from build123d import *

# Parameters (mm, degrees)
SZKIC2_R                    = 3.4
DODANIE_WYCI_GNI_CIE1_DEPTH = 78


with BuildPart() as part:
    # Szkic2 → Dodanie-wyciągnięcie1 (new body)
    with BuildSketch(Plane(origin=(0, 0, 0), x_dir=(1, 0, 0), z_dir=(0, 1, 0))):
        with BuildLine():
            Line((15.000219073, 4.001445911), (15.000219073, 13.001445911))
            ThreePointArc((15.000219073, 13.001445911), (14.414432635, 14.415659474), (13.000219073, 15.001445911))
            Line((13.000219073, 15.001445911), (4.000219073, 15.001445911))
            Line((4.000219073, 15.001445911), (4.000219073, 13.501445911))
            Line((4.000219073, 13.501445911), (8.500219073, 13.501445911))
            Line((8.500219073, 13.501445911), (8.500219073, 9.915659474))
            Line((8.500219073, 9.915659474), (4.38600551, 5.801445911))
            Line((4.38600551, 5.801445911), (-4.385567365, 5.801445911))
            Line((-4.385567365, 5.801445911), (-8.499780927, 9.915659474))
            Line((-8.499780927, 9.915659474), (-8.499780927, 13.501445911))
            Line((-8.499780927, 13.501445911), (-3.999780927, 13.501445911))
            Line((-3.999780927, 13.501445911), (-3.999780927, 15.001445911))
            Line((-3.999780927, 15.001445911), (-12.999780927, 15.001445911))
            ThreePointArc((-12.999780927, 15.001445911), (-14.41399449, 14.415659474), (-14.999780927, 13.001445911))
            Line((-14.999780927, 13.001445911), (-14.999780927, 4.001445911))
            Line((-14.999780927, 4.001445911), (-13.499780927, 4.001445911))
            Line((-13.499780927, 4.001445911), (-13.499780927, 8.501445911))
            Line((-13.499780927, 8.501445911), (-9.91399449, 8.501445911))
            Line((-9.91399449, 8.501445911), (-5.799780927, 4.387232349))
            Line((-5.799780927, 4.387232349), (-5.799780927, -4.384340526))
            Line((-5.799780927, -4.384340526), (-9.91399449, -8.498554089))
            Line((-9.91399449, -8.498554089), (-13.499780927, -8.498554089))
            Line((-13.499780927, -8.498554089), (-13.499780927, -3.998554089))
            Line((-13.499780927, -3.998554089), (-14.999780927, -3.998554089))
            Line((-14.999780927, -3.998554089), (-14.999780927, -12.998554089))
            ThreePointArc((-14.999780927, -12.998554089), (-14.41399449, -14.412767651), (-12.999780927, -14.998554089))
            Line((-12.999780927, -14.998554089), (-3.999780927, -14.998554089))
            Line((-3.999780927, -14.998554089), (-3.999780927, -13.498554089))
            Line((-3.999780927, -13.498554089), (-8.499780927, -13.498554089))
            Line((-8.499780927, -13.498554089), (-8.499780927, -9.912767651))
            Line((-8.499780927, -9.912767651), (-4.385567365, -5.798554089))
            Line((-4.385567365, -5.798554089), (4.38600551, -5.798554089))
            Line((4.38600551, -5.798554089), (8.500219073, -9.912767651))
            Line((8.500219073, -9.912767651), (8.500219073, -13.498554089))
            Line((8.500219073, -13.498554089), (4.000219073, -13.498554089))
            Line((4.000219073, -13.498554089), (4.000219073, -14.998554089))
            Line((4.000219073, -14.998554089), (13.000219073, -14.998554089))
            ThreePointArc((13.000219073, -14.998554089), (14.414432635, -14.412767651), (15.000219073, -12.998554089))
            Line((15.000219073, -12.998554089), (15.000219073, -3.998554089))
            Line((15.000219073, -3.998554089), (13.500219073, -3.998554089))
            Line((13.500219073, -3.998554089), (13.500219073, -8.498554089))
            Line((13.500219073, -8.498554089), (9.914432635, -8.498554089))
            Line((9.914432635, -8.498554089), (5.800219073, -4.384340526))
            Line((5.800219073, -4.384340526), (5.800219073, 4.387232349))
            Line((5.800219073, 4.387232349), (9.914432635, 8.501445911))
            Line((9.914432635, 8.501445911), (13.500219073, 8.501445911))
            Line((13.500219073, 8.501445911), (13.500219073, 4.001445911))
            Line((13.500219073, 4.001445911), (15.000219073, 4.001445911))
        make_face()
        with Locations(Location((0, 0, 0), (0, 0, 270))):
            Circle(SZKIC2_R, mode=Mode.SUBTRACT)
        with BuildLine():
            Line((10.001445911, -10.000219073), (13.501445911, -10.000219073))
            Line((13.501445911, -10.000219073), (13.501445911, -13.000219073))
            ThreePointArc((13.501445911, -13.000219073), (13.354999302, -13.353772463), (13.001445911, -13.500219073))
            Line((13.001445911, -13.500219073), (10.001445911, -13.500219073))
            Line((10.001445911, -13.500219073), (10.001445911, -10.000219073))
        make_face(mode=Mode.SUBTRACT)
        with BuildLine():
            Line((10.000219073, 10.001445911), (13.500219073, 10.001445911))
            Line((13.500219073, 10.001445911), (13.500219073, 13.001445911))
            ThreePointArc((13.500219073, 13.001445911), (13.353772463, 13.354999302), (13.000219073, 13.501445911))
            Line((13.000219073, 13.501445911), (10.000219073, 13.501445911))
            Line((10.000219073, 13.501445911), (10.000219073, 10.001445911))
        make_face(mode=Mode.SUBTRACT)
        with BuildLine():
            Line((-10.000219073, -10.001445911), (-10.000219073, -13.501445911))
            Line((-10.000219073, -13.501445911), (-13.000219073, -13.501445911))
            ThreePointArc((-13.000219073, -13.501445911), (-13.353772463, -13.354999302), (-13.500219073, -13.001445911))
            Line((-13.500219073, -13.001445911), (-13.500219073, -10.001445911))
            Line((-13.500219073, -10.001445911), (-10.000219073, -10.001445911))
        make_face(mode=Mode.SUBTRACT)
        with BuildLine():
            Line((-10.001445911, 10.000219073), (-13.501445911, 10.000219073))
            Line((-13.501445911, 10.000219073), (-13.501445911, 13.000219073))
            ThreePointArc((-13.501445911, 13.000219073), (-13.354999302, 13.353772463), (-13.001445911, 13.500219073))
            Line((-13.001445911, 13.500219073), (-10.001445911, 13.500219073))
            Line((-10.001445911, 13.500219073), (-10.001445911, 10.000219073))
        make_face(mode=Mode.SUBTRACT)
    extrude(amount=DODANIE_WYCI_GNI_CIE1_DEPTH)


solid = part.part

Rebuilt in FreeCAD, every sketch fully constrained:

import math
import FreeCAD as App
import Part
import Sketcher
Q = App.Units.Quantity

doc = App.newDocument("Part")
body = doc.addObject("PartDesign::Body", "Body")

sketch1 = doc.addObject("Sketcher::SketchObject", "Sketch")
body.addObject(sketch1)
sketch1.AttachmentSupport = (doc.XZ_Plane, [""])
sketch1.MapMode = "FlatFace"
sketch1.addGeometry(Part.LineSegment(App.Vector(15.000219, -4.001446, 0), App.Vector(15.000219, -13.001446, 0)), False)
sketch1.addGeometry(Part.ArcOfCircle(Part.Circle(App.Vector(13.000219, -13.001446, 0), App.Vector(0, 0, 1), 2), math.radians(-90), math.radians(0)), False)
sketch1.addGeometry(Part.LineSegment(App.Vector(13.000219, -15.001446, 0), App.Vector(4.000219, -15.001446, 0)), False)
sketch1.addGeometry(Part.LineSegment(App.Vector(4.000219, -15.001446, 0), App.Vector(4.000219, -13.501446, 0)), False)
sketch1.addGeometry(Part.LineSegment(App.Vector(4.000219, -13.501446, 0), App.Vector(8.500219, -13.501446, 0)), False)
sketch1.addGeometry(Part.LineSegment(App.Vector(8.500219, -13.501446, 0), App.Vector(8.500219, -9.915659, 0)), False)
sketch1.addGeometry(Part.LineSegment(App.Vector(8.500219, -9.915659, 0), App.Vector(4.386006, -5.801446, 0)), False)
sketch1.addGeometry(Part.LineSegment(App.Vector(4.386006, -5.801446, 0), App.Vector(-4.385567, -5.801446, 0)), False)
sketch1.addGeometry(Part.LineSegment(App.Vector(-4.385567, -5.801446, 0), App.Vector(-8.499781, -9.915659, 0)), False)
sketch1.addGeometry(Part.LineSegment(App.Vector(-8.499781, -9.915659, 0), App.Vector(-8.499781, -13.501446, 0)), False)
sketch1.addGeometry(Part.LineSegment(App.Vector(-8.499781, -13.501446, 0), App.Vector(-3.999781, -13.501446, 0)), False)
sketch1.addGeometry(Part.LineSegment(App.Vector(-3.999781, -13.501446, 0), App.Vector(-3.999781, -15.001446, 0)), False)
sketch1.addGeometry(Part.LineSegment(App.Vector(-3.999781, -15.001446, 0), App.Vector(-12.999781, -15.001446, 0)), False)
sketch1.addGeometry(Part.ArcOfCircle(Part.Circle(App.Vector(-12.999781, -13.001446, 0), App.Vector(0, 0, 1), 2), math.radians(180), math.radians(270)), False)
sketch1.addGeometry(Part.LineSegment(App.Vector(-14.999781, -13.001446, 0), App.Vector(-14.999781, -4.001446, 0)), False)
sketch1.addGeometry(Part.LineSegment(App.Vector(-14.999781, -4.001446, 0), App.Vector(-13.499781, -4.001446, 0)), False)
sketch1.addGeometry(Part.LineSegment(App.Vector(-13.499781, -4.001446, 0), App.Vector(-13.499781, -8.501446, 0)), False)
sketch1.addGeometry(Part.LineSegment(App.Vector(-13.499781, -8.501446, 0), App.Vector(-9.913994, -8.501446, 0)), False)
sketch1.addGeometry(Part.LineSegment(App.Vector(-9.913994, -8.501446, 0), App.Vector(-5.799781, -4.387232, 0)), False)
sketch1.addGeometry(Part.LineSegment(App.Vector(-5.799781, -4.387232, 0), App.Vector(-5.799781, 4.384341, 0)), False)
sketch1.addGeometry(Part.LineSegment(App.Vector(-5.799781, 4.384341, 0), App.Vector(-9.913994, 8.498554, 0)), False)
sketch1.addGeometry(Part.LineSegment(App.Vector(-9.913994, 8.498554, 0), App.Vector(-13.499781, 8.498554, 0)), False)
sketch1.addGeometry(Part.LineSegment(App.Vector(-13.499781, 8.498554, 0), App.Vector(-13.499781, 3.998554, 0)), False)
sketch1.addGeometry(Part.LineSegment(App.Vector(-13.499781, 3.998554, 0), App.Vector(-14.999781, 3.998554, 0)), False)
sketch1.addGeometry(Part.LineSegment(App.Vector(-14.999781, 3.998554, 0), App.Vector(-14.999781, 12.998554, 0)), False)
sketch1.addGeometry(Part.ArcOfCircle(Part.Circle(App.Vector(-12.999781, 12.998554, 0), App.Vector(0, 0, 1), 2), math.radians(90), math.radians(180)), False)
sketch1.addGeometry(Part.LineSegment(App.Vector(-12.999781, 14.998554, 0), App.Vector(-3.999781, 14.998554, 0)), False)
sketch1.addGeometry(Part.LineSegment(App.Vector(-3.999781, 14.998554, 0), App.Vector(-3.999781, 13.498554, 0)), False)
sketch1.addGeometry(Part.LineSegment(App.Vector(-3.999781, 13.498554, 0), App.Vector(-8.499781, 13.498554, 0)), False)
sketch1.addGeometry(Part.LineSegment(App.Vector(-8.499781, 13.498554, 0), App.Vector(-8.499781, 9.912768, 0)), False)
sketch1.addGeometry(Part.LineSegment(App.Vector(-8.499781, 9.912768, 0), App.Vector(-4.385567, 5.798554, 0)), False)
sketch1.addGeometry(Part.LineSegment(App.Vector(-4.385567, 5.798554, 0), App.Vector(4.386006, 5.798554, 0)), False)
sketch1.addGeometry(Part.LineSegment(App.Vector(4.386006, 5.798554, 0), App.Vector(8.500219, 9.912768, 0)), False)
sketch1.addGeometry(Part.LineSegment(App.Vector(8.500219, 9.912768, 0), App.Vector(8.500219, 13.498554, 0)), False)
sketch1.addGeometry(Part.LineSegment(App.Vector(8.500219, 13.498554, 0), App.Vector(4.000219, 13.498554, 0)), False)
sketch1.addGeometry(Part.LineSegment(App.Vector(4.000219, 13.498554, 0), App.Vector(4.000219, 14.998554, 0)), False)
sketch1.addGeometry(Part.LineSegment(App.Vector(4.000219, 14.998554, 0), App.Vector(13.000219, 14.998554, 0)), False)
sketch1.addGeometry(Part.ArcOfCircle(Part.Circle(App.Vector(13.000219, 12.998554, 0), App.Vector(0, 0, 1), 2), math.radians(0), math.radians(90)), False)
sketch1.addGeometry(Part.LineSegment(App.Vector(15.000219, 12.998554, 0), App.Vector(15.000219, 3.998554, 0)), False)
sketch1.addGeometry(Part.LineSegment(App.Vector(15.000219, 3.998554, 0), App.Vector(13.500219, 3.998554, 0)), False)
sketch1.addGeometry(Part.LineSegment(App.Vector(13.500219, 3.998554, 0), App.Vector(13.500219, 8.498554, 0)), False)
sketch1.addGeometry(Part.LineSegment(App.Vector(13.500219, 8.498554, 0), App.Vector(9.914433, 8.498554, 0)), False)
sketch1.addGeometry(Part.LineSegment(App.Vector(9.914433, 8.498554, 0), App.Vector(5.800219, 4.384341, 0)), False)
sketch1.addGeometry(Part.LineSegment(App.Vector(5.800219, 4.384341, 0), App.Vector(5.800219, -4.387232, 0)), False)
sketch1.addGeometry(Part.LineSegment(App.Vector(5.800219, -4.387232, 0), App.Vector(9.914433, -8.501446, 0)), False)
sketch1.addGeometry(Part.LineSegment(App.Vector(9.914433, -8.501446, 0), App.Vector(13.500219, -8.501446, 0)), False)
sketch1.addGeometry(Part.LineSegment(App.Vector(13.500219, -8.501446, 0), App.Vector(13.500219, -4.001446, 0)), False)
sketch1.addGeometry(Part.LineSegment(App.Vector(13.500219, -4.001446, 0), App.Vector(15.000219, -4.001446, 0)), False)
sketch1.addGeometry(Part.LineSegment(App.Vector(-13.500219, 10.001446, 0), App.Vector(-10.000219, 10.001446, 0)), False)
sketch1.addGeometry(Part.LineSegment(App.Vector(-10.000219, 10.001446, 0), App.Vector(-10.000219, 13.501446, 0)), False)
sketch1.addGeometry(Part.LineSegment(App.Vector(-10.000219, 13.501446, 0), App.Vector(-13.000219, 13.501446, 0)), False)
sketch1.addGeometry(Part.ArcOfCircle(Part.Circle(App.Vector(-13.000219, 13.001446, 0), App.Vector(0, 0, 1), 0.5), math.radians(90), math.radians(180)), False)
sketch1.addGeometry(Part.LineSegment(App.Vector(-13.500219, 13.001446, 0), App.Vector(-13.500219, 10.001446, 0)), False)
sketch1.addGeometry(Part.Circle(App.Vector(0, 0, 0), App.Vector(0, 0, 1), 3.4), False)
sketch1.addGeometry(Part.LineSegment(App.Vector(10.001446, 13.500219, 0), App.Vector(10.001446, 10.000219, 0)), False)
sketch1.addGeometry(Part.LineSegment(App.Vector(10.001446, 10.000219, 0), App.Vector(13.501446, 10.000219, 0)), False)
sketch1.addGeometry(Part.LineSegment(App.Vector(13.501446, 10.000219, 0), App.Vector(13.501446, 13.000219, 0)), False)
sketch1.addGeometry(Part.ArcOfCircle(Part.Circle(App.Vector(13.001446, 13.000219, 0), App.Vector(0, 0, 1), 0.5), math.radians(0), math.radians(90)), False)
sketch1.addGeometry(Part.LineSegment(App.Vector(13.001446, 13.500219, 0), App.Vector(10.001446, 13.500219, 0)), False)
sketch1.addGeometry(Part.LineSegment(App.Vector(-10.001446, -13.500219, 0), App.Vector(-10.001446, -10.000219, 0)), False)
sketch1.addGeometry(Part.LineSegment(App.Vector(-10.001446, -10.000219, 0), App.Vector(-13.501446, -10.000219, 0)), False)
sketch1.addGeometry(Part.LineSegment(App.Vector(-13.501446, -10.000219, 0), App.Vector(-13.501446, -13.000219, 0)), False)
sketch1.addGeometry(Part.ArcOfCircle(Part.Circle(App.Vector(-13.001446, -13.000219, 0), App.Vector(0, 0, 1), 0.5), math.radians(180), math.radians(270)), False)
sketch1.addGeometry(Part.LineSegment(App.Vector(-13.001446, -13.500219, 0), App.Vector(-10.001446, -13.500219, 0)), False)
sketch1.addGeometry(Part.LineSegment(App.Vector(13.500219, -10.001446, 0), App.Vector(10.000219, -10.001446, 0)), False)
sketch1.addGeometry(Part.LineSegment(App.Vector(10.000219, -10.001446, 0), App.Vector(10.000219, -13.501446, 0)), False)
sketch1.addGeometry(Part.LineSegment(App.Vector(10.000219, -13.501446, 0), App.Vector(13.000219, -13.501446, 0)), False)
sketch1.addGeometry(Part.ArcOfCircle(Part.Circle(App.Vector(13.000219, -13.001446, 0), App.Vector(0, 0, 1), 0.5), math.radians(-90), math.radians(0)), False)
sketch1.addGeometry(Part.LineSegment(App.Vector(13.500219, -13.001446, 0), App.Vector(13.500219, -10.001446, 0)), False)
sketch1.addConstraint(Sketcher.Constraint("Tangent", 0, 2, 1, 2))
sketch1.addConstraint(Sketcher.Constraint("Tangent", 1, 1, 2, 1))
sketch1.addConstraint(Sketcher.Constraint("Coincident", 2, 2, 3, 1))
sketch1.addConstraint(Sketcher.Constraint("Coincident", 3, 2, 4, 1))
sketch1.addConstraint(Sketcher.Constraint("Coincident", 4, 2, 5, 1))
sketch1.addConstraint(Sketcher.Constraint("Coincident", 5, 2, 6, 1))
sketch1.addConstraint(Sketcher.Constraint("Coincident", 6, 2, 7, 1))
sketch1.addConstraint(Sketcher.Constraint("Coincident", 7, 2, 8, 1))
sketch1.addConstraint(Sketcher.Constraint("Coincident", 8, 2, 9, 1))
sketch1.addConstraint(Sketcher.Constraint("Coincident", 9, 2, 10, 1))
sketch1.addConstraint(Sketcher.Constraint("Coincident", 10, 2, 11, 1))
sketch1.addConstraint(Sketcher.Constraint("Coincident", 11, 2, 12, 1))
sketch1.addConstraint(Sketcher.Constraint("Tangent", 12, 2, 13, 2))
sketch1.addConstraint(Sketcher.Constraint("Tangent", 13, 1, 14, 1))
sketch1.addConstraint(Sketcher.Constraint("Coincident", 14, 2, 15, 1))
sketch1.addConstraint(Sketcher.Constraint("Coincident", 15, 2, 16, 1))
sketch1.addConstraint(Sketcher.Constraint("Coincident", 16, 2, 17, 1))
sketch1.addConstraint(Sketcher.Constraint("Coincident", 17, 2, 18, 1))
sketch1.addConstraint(Sketcher.Constraint("Coincident", 18, 2, 19, 1))
sketch1.addConstraint(Sketcher.Constraint("Coincident", 19, 2, 20, 1))
sketch1.addConstraint(Sketcher.Constraint("Coincident", 20, 2, 21, 1))
sketch1.addConstraint(Sketcher.Constraint("Coincident", 21, 2, 22, 1))
sketch1.addConstraint(Sketcher.Constraint("Coincident", 22, 2, 23, 1))
sketch1.addConstraint(Sketcher.Constraint("Coincident", 23, 2, 24, 1))
sketch1.addConstraint(Sketcher.Constraint("Tangent", 24, 2, 25, 2))
sketch1.addConstraint(Sketcher.Constraint("Tangent", 25, 1, 26, 1))
sketch1.addConstraint(Sketcher.Constraint("Coincident", 26, 2, 27, 1))
sketch1.addConstraint(Sketcher.Constraint("Coincident", 27, 2, 28, 1))
sketch1.addConstraint(Sketcher.Constraint("Coincident", 28, 2, 29, 1))
sketch1.addConstraint(Sketcher.Constraint("Coincident", 29, 2, 30, 1))
sketch1.addConstraint(Sketcher.Constraint("Coincident", 30, 2, 31, 1))
sketch1.addConstraint(Sketcher.Constraint("Coincident", 31, 2, 32, 1))
sketch1.addConstraint(Sketcher.Constraint("Coincident", 32, 2, 33, 1))
sketch1.addConstraint(Sketcher.Constraint("Coincident", 33, 2, 34, 1))
sketch1.addConstraint(Sketcher.Constraint("Coincident", 34, 2, 35, 1))
sketch1.addConstraint(Sketcher.Constraint("Coincident", 35, 2, 36, 1))
sketch1.addConstraint(Sketcher.Constraint("Tangent", 36, 2, 37, 2))
sketch1.addConstraint(Sketcher.Constraint("Tangent", 37, 1, 38, 1))
sketch1.addConstraint(Sketcher.Constraint("Coincident", 38, 2, 39, 1))
sketch1.addConstraint(Sketcher.Constraint("Coincident", 39, 2, 40, 1))
sketch1.addConstraint(Sketcher.Constraint("Coincident", 40, 2, 41, 1))
sketch1.addConstraint(Sketcher.Constraint("Coincident", 41, 2, 42, 1))
sketch1.addConstraint(Sketcher.Constraint("Coincident", 42, 2, 43, 1))
sketch1.addConstraint(Sketcher.Constraint("Coincident", 43, 2, 44, 1))
sketch1.addConstraint(Sketcher.Constraint("Coincident", 44, 2, 45, 1))
sketch1.addConstraint(Sketcher.Constraint("Coincident", 45, 2, 46, 1))
sketch1.addConstraint(Sketcher.Constraint("Coincident", 46, 2, 47, 1))
sketch1.addConstraint(Sketcher.Constraint("Coincident", 47, 2, 0, 1))
sketch1.addConstraint(Sketcher.Constraint("Coincident", 48, 2, 49, 1))
sketch1.addConstraint(Sketcher.Constraint("Coincident", 49, 2, 50, 1))
sketch1.addConstraint(Sketcher.Constraint("Tangent", 50, 2, 51, 1))
sketch1.addConstraint(Sketcher.Constraint("Tangent", 51, 2, 52, 1))
sketch1.addConstraint(Sketcher.Constraint("Coincident", 52, 2, 48, 1))
sketch1.addConstraint(Sketcher.Constraint("Coincident", 54, 2, 55, 1))
sketch1.addConstraint(Sketcher.Constraint("Coincident", 55, 2, 56, 1))
sketch1.addConstraint(Sketcher.Constraint("Tangent", 56, 2, 57, 1))
sketch1.addConstraint(Sketcher.Constraint("Tangent", 57, 2, 58, 1))
sketch1.addConstraint(Sketcher.Constraint("Coincident", 58, 2, 54, 1))
sketch1.addConstraint(Sketcher.Constraint("Coincident", 59, 2, 60, 1))
sketch1.addConstraint(Sketcher.Constraint("Coincident", 60, 2, 61, 1))
sketch1.addConstraint(Sketcher.Constraint("Tangent", 61, 2, 62, 1))
sketch1.addConstraint(Sketcher.Constraint("Tangent", 62, 2, 63, 1))
sketch1.addConstraint(Sketcher.Constraint("Coincident", 63, 2, 59, 1))
sketch1.addConstraint(Sketcher.Constraint("Coincident", 64, 2, 65, 1))
sketch1.addConstraint(Sketcher.Constraint("Coincident", 65, 2, 66, 1))
sketch1.addConstraint(Sketcher.Constraint("Tangent", 66, 2, 67, 1))
sketch1.addConstraint(Sketcher.Constraint("Tangent", 67, 2, 68, 1))
sketch1.addConstraint(Sketcher.Constraint("Coincident", 68, 2, 64, 1))
sketch1.addConstraint(Sketcher.Constraint("Vertical", 0))
sketch1.addConstraint(Sketcher.Constraint("Horizontal", 2))
sketch1.addConstraint(Sketcher.Constraint("Vertical", 3))
sketch1.addConstraint(Sketcher.Constraint("Horizontal", 4))
sketch1.addConstraint(Sketcher.Constraint("Vertical", 5))
sketch1.addConstraint(Sketcher.Constraint("Horizontal", 7))
sketch1.addConstraint(Sketcher.Constraint("Vertical", 9))
sketch1.addConstraint(Sketcher.Constraint("Horizontal", 10))
sketch1.addConstraint(Sketcher.Constraint("Vertical", 11))
sketch1.addConstraint(Sketcher.Constraint("Horizontal", 12))
sketch1.addConstraint(Sketcher.Constraint("Vertical", 14))
sketch1.addConstraint(Sketcher.Constraint("Horizontal", 15))
sketch1.addConstraint(Sketcher.Constraint("Vertical", 16))
sketch1.addConstraint(Sketcher.Constraint("Horizontal", 17))
sketch1.addConstraint(Sketcher.Constraint("Vertical", 19))
sketch1.addConstraint(Sketcher.Constraint("Horizontal", 21))
sketch1.addConstraint(Sketcher.Constraint("Vertical", 22))
sketch1.addConstraint(Sketcher.Constraint("Horizontal", 23))
sketch1.addConstraint(Sketcher.Constraint("Vertical", 24))
sketch1.addConstraint(Sketcher.Constraint("Horizontal", 26))
sketch1.addConstraint(Sketcher.Constraint("Vertical", 27))
sketch1.addConstraint(Sketcher.Constraint("Horizontal", 28))
sketch1.addConstraint(Sketcher.Constraint("Vertical", 29))
sketch1.addConstraint(Sketcher.Constraint("Horizontal", 31))
sketch1.addConstraint(Sketcher.Constraint("Vertical", 33))
sketch1.addConstraint(Sketcher.Constraint("Horizontal", 34))
sketch1.addConstraint(Sketcher.Constraint("Vertical", 35))
sketch1.addConstraint(Sketcher.Constraint("Horizontal", 36))
sketch1.addConstraint(Sketcher.Constraint("Vertical", 38))
sketch1.addConstraint(Sketcher.Constraint("Horizontal", 39))
sketch1.addConstraint(Sketcher.Constraint("Vertical", 40))
sketch1.addConstraint(Sketcher.Constraint("Horizontal", 41))
sketch1.addConstraint(Sketcher.Constraint("Vertical", 43))
sketch1.addConstraint(Sketcher.Constraint("Horizontal", 45))
sketch1.addConstraint(Sketcher.Constraint("Vertical", 46))
sketch1.addConstraint(Sketcher.Constraint("Horizontal", 47))
sketch1.addConstraint(Sketcher.Constraint("Horizontal", 48))
sketch1.addConstraint(Sketcher.Constraint("Vertical", 49))
sketch1.addConstraint(Sketcher.Constraint("Horizontal", 50))
sketch1.addConstraint(Sketcher.Constraint("Vertical", 52))
sketch1.addConstraint(Sketcher.Constraint("Vertical", 54))
sketch1.addConstraint(Sketcher.Constraint("Horizontal", 55))
sketch1.addConstraint(Sketcher.Constraint("Vertical", 56))
sketch1.addConstraint(Sketcher.Constraint("Horizontal", 58))
sketch1.addConstraint(Sketcher.Constraint("Vertical", 59))
sketch1.addConstraint(Sketcher.Constraint("Horizontal", 60))
sketch1.addConstraint(Sketcher.Constraint("Vertical", 61))
sketch1.addConstraint(Sketcher.Constraint("Horizontal", 63))
sketch1.addConstraint(Sketcher.Constraint("Horizontal", 64))
sketch1.addConstraint(Sketcher.Constraint("Vertical", 65))
sketch1.addConstraint(Sketcher.Constraint("Horizontal", 66))
sketch1.addConstraint(Sketcher.Constraint("Vertical", 68))
sketch1.addConstraint(Sketcher.Constraint("Coincident", 53, 3, -1, 1))
sketch1.addConstraint(Sketcher.Constraint("Coincident", 67, 3, 1, 3))
sketch1.addConstraint(Sketcher.Constraint("Equal", 1, 13))
sketch1.addConstraint(Sketcher.Constraint("Equal", 13, 25))
sketch1.addConstraint(Sketcher.Constraint("Equal", 25, 37))
sketch1.addConstraint(Sketcher.Constraint("Equal", 51, 57))
sketch1.addConstraint(Sketcher.Constraint("Equal", 57, 62))
sketch1.addConstraint(Sketcher.Constraint("Equal", 62, 67))
sketch1.addConstraint(Sketcher.Constraint("Symmetric", 1, 3, 51, 3, -1, 1))
sketch1.addConstraint(Sketcher.Constraint("Symmetric", 57, 3, 62, 3, -1, 1))
sketch1.addConstraint(Sketcher.Constraint("Symmetric", 54, 2, 59, 2, -1, 1))
sketch1.addConstraint(Sketcher.Constraint("Symmetric", 48, 2, 64, 2, -1, 1))
sketch1.addConstraint(Sketcher.Constraint("Perpendicular", 6, 8))
sketch1.addConstraint(Sketcher.Constraint("Parallel", 8, 18))
sketch1.addConstraint(Sketcher.Constraint("Perpendicular", 18, 20))
sketch1.addConstraint(Sketcher.Constraint("Parallel", 20, 30))
sketch1.addConstraint(Sketcher.Constraint("Perpendicular", 30, 32))
sketch1.addConstraint(Sketcher.Constraint("Parallel", 32, 42))
sketch1.addConstraint(Sketcher.Constraint("Perpendicular", 42, 44))
sketch1.addConstraint(Sketcher.Constraint("Horizontal", 1, 3, 13, 3))
sketch1.addConstraint(Sketcher.Constraint("Horizontal", 25, 3, 37, 3))
sketch1.addConstraint(Sketcher.Constraint("Horizontal", 5, 2, 8, 2))
sketch1.addConstraint(Sketcher.Constraint("Horizontal", 4, 2, 9, 2))
sketch1.addConstraint(Sketcher.Constraint("Horizontal", 29, 2, 32, 2))
sketch1.addConstraint(Sketcher.Constraint("Horizontal", 28, 2, 33, 2))
sketch1.addConstraint(Sketcher.Constraint("Horizontal", 23, 2, 38, 2))
sketch1.addConstraint(Sketcher.Constraint("Horizontal", 21, 2, 40, 2))
sketch1.addConstraint(Sketcher.Constraint("Horizontal", 19, 2, 42, 2))
sketch1.addConstraint(Sketcher.Constraint("Horizontal", 18, 2, 43, 2))
sketch1.addConstraint(Sketcher.Constraint("Horizontal", 17, 2, 44, 2))
sketch1.addConstraint(Sketcher.Constraint("Horizontal", 15, 2, 46, 2))
sketch1.addConstraint(Sketcher.Constraint("Horizontal", 10, 2, 65, 2))
sketch1.addConstraint(Sketcher.Constraint("Vertical", 13, 3, 25, 3))
sketch1.addConstraint(Sketcher.Constraint("Vertical", 1, 3, 37, 3))
sketch1.addConstraint(Sketcher.Constraint("Vertical", 17, 2, 20, 2))
sketch1.addConstraint(Sketcher.Constraint("Vertical", 16, 2, 21, 2))
sketch1.addConstraint(Sketcher.Constraint("Vertical", 11, 2, 26, 2))
sketch1.addConstraint(Sketcher.Constraint("Vertical", 9, 2, 28, 2))
sketch1.addConstraint(Sketcher.Constraint("Vertical", 7, 2, 30, 2))
sketch1.addConstraint(Sketcher.Constraint("Vertical", 6, 2, 31, 2))
sketch1.addConstraint(Sketcher.Constraint("Vertical", 5, 2, 32, 2))
sketch1.addConstraint(Sketcher.Constraint("Vertical", 3, 2, 34, 2))
sketch1.addConstraint(Sketcher.Constraint("Vertical", 40, 2, 45, 2))
sketch1.addConstraint(Sketcher.Constraint("Vertical", 46, 2, 67, 2))
sketch1.addConstraint(Sketcher.Constraint("Equal", 4, 10))
sketch1.addConstraint(Sketcher.Constraint("Equal", 2, 12))
sketch1.addConstraint(Sketcher.Constraint("Equal", 23, 39))
sketch1.addConstraint(Sketcher.Constraint("Equal", 21, 41))
sketch1.addConstraint(Sketcher.Constraint("Equal", 48, 55))
sketch1.addConstraint(Sketcher.Constraint("Equal", 36, 0))
sketch1.addConstraint(Sketcher.Constraint("Equal", 45, 5))
sketch1.addConstraint(Sketcher.Constraint("Equal", 34, 16))
sketch1.addConstraint(Sketcher.Constraint("Equal", 31, 19))
sketch1.addConstraint(Sketcher.Constraint("Equal", 16, 22))
sketch1.addConstraint(Sketcher.Constraint("Equal", 14, 24))
sketch1.addConstraint(Sketcher.Constraint("Equal", 11, 27))
sketch1.addConstraint(Sketcher.Constraint("Equal", 9, 29))
sketch1.addConstraint(Sketcher.Constraint("Equal", 64, 49))
sketch1.addConstraint(Sketcher.Constraint("Equal", 49, 54))
sketch1.addConstraint(Sketcher.Constraint("Equal", 8, 18))
sketch1.addConstraint(Sketcher.Constraint("Radius", 1, Q("2 mm")))
sketch1.addConstraint(Sketcher.Constraint("Diameter", 53, Q("6.8 mm")))
sketch1.addConstraint(Sketcher.Constraint("Radius", 51, Q("0.5 mm")))
sketch1.addConstraint(Sketcher.Constraint("DistanceX", 2, 2, 2, 1, Q("9 mm")))
sketch1.addConstraint(Sketcher.Constraint("DistanceX", 50, 2, 50, 1, Q("3 mm")))
sketch1.addConstraint(Sketcher.Constraint("DistanceX", 4, 1, 4, 2, Q("4.5 mm")))
sketch1.addConstraint(Sketcher.Constraint("DistanceX", 7, 2, 7, 1, Q("8.771573 mm")))
sketch1.addConstraint(Sketcher.Constraint("DistanceX", 17, 1, 17, 2, Q("3.585786 mm")))
sketch1.addConstraint(Sketcher.Constraint("DistanceX", -1, 1, 1, 3, Q("13.000219 mm")))
sketch1.addConstraint(Sketcher.Constraint("DistanceX", 13, 3, -1, 1, Q("12.999781 mm")))
sketch1.addConstraint(Sketcher.Constraint("DistanceY", -1, 1, 57, 3, Q("13.000219 mm")))
sketch1.addConstraint(Sketcher.Constraint("DistanceY", 5, 2, -1, 1, Q("9.915659 mm")))
sketch1.addConstraint(Sketcher.Constraint("DistanceX", -1, 1, 57, 3, Q("13.001446 mm")))
pad1 = doc.addObject("PartDesign::Pad", "Pad")
body.addObject(pad1)
pad1.Profile = sketch1
pad1.Length = 78
pad1.Reversed = True

doc.recompute()
